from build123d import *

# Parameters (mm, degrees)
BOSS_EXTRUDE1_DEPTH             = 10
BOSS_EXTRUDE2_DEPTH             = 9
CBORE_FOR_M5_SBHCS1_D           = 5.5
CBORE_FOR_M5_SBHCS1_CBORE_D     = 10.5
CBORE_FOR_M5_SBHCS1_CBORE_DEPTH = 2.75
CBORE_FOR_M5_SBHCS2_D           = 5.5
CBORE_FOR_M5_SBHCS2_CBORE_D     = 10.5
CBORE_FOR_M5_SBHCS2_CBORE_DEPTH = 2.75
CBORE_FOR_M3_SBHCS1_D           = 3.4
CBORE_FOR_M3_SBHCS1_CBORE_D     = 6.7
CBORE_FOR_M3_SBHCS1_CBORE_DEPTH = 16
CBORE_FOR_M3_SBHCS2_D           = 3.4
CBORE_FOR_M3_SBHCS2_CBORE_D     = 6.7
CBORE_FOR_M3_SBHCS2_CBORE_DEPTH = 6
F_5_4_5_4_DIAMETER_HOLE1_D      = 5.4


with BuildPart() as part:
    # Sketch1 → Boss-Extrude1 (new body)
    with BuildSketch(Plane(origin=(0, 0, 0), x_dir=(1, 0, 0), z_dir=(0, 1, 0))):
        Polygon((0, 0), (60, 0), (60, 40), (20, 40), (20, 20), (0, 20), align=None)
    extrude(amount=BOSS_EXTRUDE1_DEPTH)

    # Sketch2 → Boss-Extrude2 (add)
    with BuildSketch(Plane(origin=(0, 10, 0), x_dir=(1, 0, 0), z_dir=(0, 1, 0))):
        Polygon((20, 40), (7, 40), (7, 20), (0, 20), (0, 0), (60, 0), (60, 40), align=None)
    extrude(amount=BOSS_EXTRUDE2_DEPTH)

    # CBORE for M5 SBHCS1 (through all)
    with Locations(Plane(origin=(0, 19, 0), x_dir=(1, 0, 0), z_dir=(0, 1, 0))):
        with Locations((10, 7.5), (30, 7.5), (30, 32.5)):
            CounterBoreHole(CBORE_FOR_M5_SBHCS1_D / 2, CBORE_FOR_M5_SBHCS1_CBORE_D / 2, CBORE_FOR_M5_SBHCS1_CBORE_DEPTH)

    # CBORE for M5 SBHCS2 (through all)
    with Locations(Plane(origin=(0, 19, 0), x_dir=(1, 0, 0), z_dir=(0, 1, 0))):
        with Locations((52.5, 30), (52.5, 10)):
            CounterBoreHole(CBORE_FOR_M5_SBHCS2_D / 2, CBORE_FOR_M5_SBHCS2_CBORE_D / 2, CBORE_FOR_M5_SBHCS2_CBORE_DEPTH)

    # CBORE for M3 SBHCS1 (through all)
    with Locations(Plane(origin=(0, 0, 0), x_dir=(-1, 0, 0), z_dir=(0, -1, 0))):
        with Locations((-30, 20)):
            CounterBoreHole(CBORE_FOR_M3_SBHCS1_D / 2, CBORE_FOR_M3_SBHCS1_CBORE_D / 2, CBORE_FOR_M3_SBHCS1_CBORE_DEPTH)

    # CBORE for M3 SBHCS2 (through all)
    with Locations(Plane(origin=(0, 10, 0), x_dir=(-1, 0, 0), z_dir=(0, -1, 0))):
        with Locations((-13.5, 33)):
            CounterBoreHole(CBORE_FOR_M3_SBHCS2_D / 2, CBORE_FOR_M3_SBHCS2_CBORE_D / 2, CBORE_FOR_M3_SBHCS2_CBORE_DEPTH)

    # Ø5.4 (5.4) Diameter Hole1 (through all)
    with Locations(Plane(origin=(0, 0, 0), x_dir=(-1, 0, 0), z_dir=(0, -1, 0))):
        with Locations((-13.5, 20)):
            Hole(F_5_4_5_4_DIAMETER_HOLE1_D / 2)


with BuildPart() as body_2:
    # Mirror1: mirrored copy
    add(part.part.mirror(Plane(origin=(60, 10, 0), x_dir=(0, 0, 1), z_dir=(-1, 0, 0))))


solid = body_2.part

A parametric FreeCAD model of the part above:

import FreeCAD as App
import Part
import Sketcher

doc = App.newDocument("Part")
body = doc.addObject("PartDesign::Body", "Body")

# Sketch on XZ plane
sketch1 = body.newObject("Sketcher::SketchObject", "Sketch")
sketch1.AttachmentSupport = (doc.getObject("XZ_Plane"), [""])
sketch1.MapMode = "FlatFace"
sketch1.addGeometry(Part.LineSegment(App.Vector(0, 0, 0), App.Vector(60, 0, 0)), False)
sketch1.addGeometry(Part.LineSegment(App.Vector(60, 0, 0), App.Vector(60, -40, 0)), False)
sketch1.addGeometry(Part.LineSegment(App.Vector(60, -40, 0), App.Vector(20, -40, 0)), False)
sketch1.addGeometry(Part.LineSegment(App.Vector(20, -40, 0), App.Vector(20, -20, 0)), False)
sketch1.addGeometry(Part.LineSegment(App.Vector(20, -20, 0), App.Vector(0, -20, 0)), False)
sketch1.addGeometry(Part.LineSegment(App.Vector(0, -20, 0), App.Vector(0, 0, 0)), False)
sketch1.addConstraint(Sketcher.Constraint("Coincident", 0, 2, 1, 1))
sketch1.addConstraint(Sketcher.Constraint("Coincident", 1, 2, 2, 1))
sketch1.addConstraint(Sketcher.Constraint("Coincident", 2, 2, 3, 1))
sketch1.addConstraint(Sketcher.Constraint("Coincident", 3, 2, 4, 1))
sketch1.addConstraint(Sketcher.Constraint("Coincident", 4, 2, 5, 1))
sketch1.addConstraint(Sketcher.Constraint("Coincident", 5, 2, 0, 1))
sketch1.addConstraint(Sketcher.Constraint("Horizontal", 0))
sketch1.addConstraint(Sketcher.Constraint("Vertical", 1))
sketch1.addConstraint(Sketcher.Constraint("Horizontal", 2))
sketch1.addConstraint(Sketcher.Constraint("Vertical", 3))
sketch1.addConstraint(Sketcher.Constraint("Horizontal", 4))
sketch1.addConstraint(Sketcher.Constraint("Vertical", 5))
sketch1.addConstraint(Sketcher.Constraint("Coincident", 5, 2, -1, 1))
sketch1.addConstraint(Sketcher.Constraint("Equal", 2, 1))
sketch1.addConstraint(Sketcher.Constraint("Equal", 4, 3))
sketch1.addConstraint(Sketcher.Constraint("Equal", 3, 5))
sketch1.addConstraint(Sketcher.Constraint("DistanceX", 0, 1, 0, 2, 60.0))
pad1 = body.newObject("PartDesign::Pad", "Pad")
pad1.Profile = sketch1
pad1.Length = 10
pad1.Reversed = True

# Sketch on XZ plane
sketch2 = body.newObject("Sketcher::SketchObject", "Sketch001")
sketch2.AttachmentSupport = (doc.getObject("XZ_Plane"), [""])
sketch2.MapMode = "FlatFace"
sketch2.AttachmentOffset = App.Placement(App.Vector(0, 0, -10), App.Rotation())
sketch2.addGeometry(Part.LineSegment(App.Vector(7, -40, 0), App.Vector(7, -20, 0)), False)
sketch2.addGeometry(Part.LineSegment(App.Vector(7, -20, 0), App.Vector(0, -20, 0)), False)
sketch2.addGeometry(Part.LineSegment(App.Vector(0, -20, 0), App.Vector(0, 0, 0)), False)
sketch2.addGeometry(Part.LineSegment(App.Vector(0, 0, 0), App.Vector(60, 0, 0)), False)
sketch2.addGeometry(Part.LineSegment(App.Vector(60, 0, 0), App.Vector(60, -40, 0)), False)
sketch2.addGeometry(Part.LineSegment(App.Vector(60, -40, 0), App.Vector(7, -40, 0)), False)
sketch2.addConstraint(Sketcher.Constraint("Coincident", 0, 2, 1, 1))
sketch2.addConstraint(Sketcher.Constraint("Coincident", 1, 2, 2, 1))
sketch2.addConstraint(Sketcher.Constraint("Coincident", 2, 2, 3, 1))
sketch2.addConstraint(Sketcher.Constraint("Coincident", 3, 2, 4, 1))
sketch2.addConstraint(Sketcher.Constraint("Coincident", 4, 2, 5, 1))
sketch2.addConstraint(Sketcher.Constraint("Coincident", 5, 2, 0, 1))
sketch2.addConstraint(Sketcher.Constraint("Vertical", 0))
sketch2.addConstraint(Sketcher.Constraint("Horizontal", 1))
sketch2.addConstraint(Sketcher.Constraint("Vertical", 2))
sketch2.addConstraint(Sketcher.Constraint("Horizontal", 3))
sketch2.addConstraint(Sketcher.Constraint("Vertical", 4))
sketch2.addConstraint(Sketcher.Constraint("Horizontal", 5))
sketch2.addConstraint(Sketcher.Constraint("Coincident", 2, 2, -1, 1))
sketch2.addConstraint(Sketcher.Constraint("Equal", 0, 2))
sketch2.addConstraint(Sketcher.Constraint("DistanceX", 1, 2, 1, 1, 7.0))
sketch2.addConstraint(Sketcher.Constraint("DistanceX", 3, 1, 3, 2, 60.0))
sketch2.addConstraint(Sketcher.Constraint("DistanceY", 0, 1, 0, 2, 20.0))
pad2 = body.newObject("PartDesign::Pad", "Pad001")
pad2.Profile = sketch2
pad2.Length = 9
pad2.Reversed = True

# Sketch on XZ plane
sketch3 = body.newObject("Sketcher::SketchObject", "Sketch002")
sketch3.AttachmentSupport = (doc.getObject("XZ_Plane"), [""])
sketch3.MapMode = "FlatFace"
sketch3.AttachmentOffset = App.Placement(App.Vector(0, 0, -19), App.Rotation())
sketch3.addGeometry(Part.Circle(App.Vector(10, -7.5, 0), App.Vector(0, 0, 1), 2.8), False)
sketch3.addGeometry(Part.Circle(App.Vector(30, -7.5, 0), App.Vector(0, 0, 1), 2.8), False)
sketch3.addGeometry(Part.Circle(App.Vector(30, -32.5, 0), App.Vector(0, 0, 1), 2.8), False)
sketch3.addConstraint(Sketcher.Constraint("Equal", 0, 1))
sketch3.addConstraint(Sketcher.Constraint("Equal", 1, 2))
sketch3.addConstraint(Sketcher.Constraint("Horizontal", 0, 3, 1, 3))
sketch3.addConstraint(Sketcher.Constraint("Vertical", 1, 3, 2, 3))
sketch3.addConstraint(Sketcher.Constraint("Diameter", 0, 5.5))
sketch3.addConstraint(Sketcher.Constraint("DistanceX", -1, 1, 0, 3, 10.0))
sketch3.addConstraint(Sketcher.Constraint("DistanceX", -1, 1, 1, 3, 30.0))
sketch3.addConstraint(Sketcher.Constraint("DistanceY", 2, 3, 1, 3, 25.0))
sketch3.addConstraint(Sketcher.Constraint("DistanceY", 0, 3, -1, 1, 7.5))
doc.recompute()
hole = body.newObject("PartDesign::Hole", "Hole")
hole.Profile = sketch3
hole.ThreadType = "None"
hole.Diameter = 5.5
hole.DepthType = "ThroughAll"
hole.HoleCutType = "Counterbore"
hole.HoleCutDiameter = 10.5
hole.HoleCutDepth = 2.75
hole.Reversed = True

# Sketch on XZ plane
sketch4 = body.newObject("Sketcher::SketchObject", "Sketch003")
sketch4.AttachmentSupport = (doc.getObject("XZ_Plane"), [""])
sketch4.MapMode = "FlatFace"
sketch4.AttachmentOffset = App.Placement(App.Vector(0, 0, -19), App.Rotation())
sketch4.addGeometry(Part.Circle(App.Vector(52.5, -30, 0), App.Vector(0, 0, 1), 2.8), False)
sketch4.addGeometry(Part.Circle(App.Vector(52.5, -10, 0), App.Vector(0, 0, 1), 2.8), False)
sketch4.addConstraint(Sketcher.Constraint("Equal", 0, 1))
sketch4.addConstraint(Sketcher.Constraint("Vertical", 0, 3, 1, 3))
sketch4.addConstraint(Sketcher.Constraint("Diameter", 0, 5.5))
sketch4.addConstraint(Sketcher.Constraint("DistanceY", 0, 3, -1, 1, 30.0))
sketch4.addConstraint(Sketcher.Constraint("DistanceY", 1, 3, -1, 1, 10.0))
sketch4.addConstraint(Sketcher.Constraint("DistanceX", -1, 1, 0, 3, 52.5))
doc.recompute()
hole2 = body.newObject("PartDesign::Hole", "Hole001")
hole2.Profile = sketch4
hole2.ThreadType = "None"
hole2.Diameter = 5.5
hole2.DepthType = "ThroughAll"
hole2.HoleCutType = "Counterbore"
hole2.HoleCutDiameter = 10.5
hole2.HoleCutDepth = 2.75
hole2.Reversed = True

# Sketch on XZ plane
sketch5 = body.newObject("Sketcher::SketchObject", "Sketch004")
sketch5.AttachmentSupport = (doc.getObject("XZ_Plane"), [""])
sketch5.MapMode = "FlatFace"
sketch5.addGeometry(Part.Circle(App.Vector(30, -20, 0), App.Vector(0, 0, 1), 1.7), False)
sketch5.addConstraint(Sketcher.Constraint("Diameter", 0, 3.4))
sketch5.addConstraint(Sketcher.Constraint("DistanceX", -1, 1, 0, 3, 30.0))
sketch5.addConstraint(Sketcher.Constraint("DistanceY", 0, 3, -1, 1, 20.0))
doc.recompute()
hole3 = body.newObject("PartDesign::Hole", "Hole002")
hole3.Profile = sketch5
hole3.ThreadType = "None"
hole3.Diameter = 3.4
hole3.DepthType = "ThroughAll"
hole3.HoleCutType = "Counterbore"
hole3.HoleCutDiameter = 6.7
hole3.HoleCutDepth = 16

# Sketch on XZ plane
sketch6 = body.newObject("Sketcher::SketchObject", "Sketch005")
sketch6.AttachmentSupport = (doc.getObject("XZ_Plane"), [""])
sketch6.MapMode = "FlatFace"
sketch6.AttachmentOffset = App.Placement(App.Vector(0, 0, -10), App.Rotation())
sketch6.addGeometry(Part.Circle(App.Vector(13.5, -33, 0), App.Vector(0, 0, 1), 1.7), False)
sketch6.addConstraint(Sketcher.Constraint("Diameter", 0, 3.4))
sketch6.addConstraint(Sketcher.Constraint("DistanceY", 0, 3, -1, 1, 33.0))
sketch6.addConstraint(Sketcher.Constraint("DistanceX", -1, 1, 0, 3, 13.5))
doc.recompute()
hole4 = body.newObject("PartDesign::Hole", "Hole003")
hole4.Profile = sketch6
hole4.ThreadType = "None"
hole4.Diameter = 3.4
hole4.DepthType = "ThroughAll"
hole4.HoleCutType = "Counterbore"
hole4.HoleCutDiameter = 6.7
hole4.HoleCutDepth = 6

# Sketch on XZ plane
sketch7 = body.newObject("Sketcher::SketchObject", "Sketch006")
sketch7.AttachmentSupport = (doc.getObject("XZ_Plane"), [""])
sketch7.MapMode = "FlatFace"
sketch7.addGeometry(Part.Circle(App.Vector(13.5, -20, 0), App.Vector(0, 0, 1), 2.7), False)
sketch7.addConstraint(Sketcher.Constraint("Diameter", 0, 5.4))
sketch7.addConstraint(Sketcher.Constraint("DistanceY", 0, 3, -1, 1, 20.0))
sketch7.addConstraint(Sketcher.Constraint("DistanceX", -1, 1, 0, 3, 13.5))
doc.recompute()
hole5 = body.newObject("PartDesign::Hole", "Hole004")
hole5.Profile = sketch7
hole5.ThreadType = "None"
hole5.Diameter = 5.4
hole5.DepthType = "ThroughAll"
body2 = doc.addObject("PartDesign::Body", "Body001")
doc.recompute()

mirroring = doc.addObject("Part::Mirroring", "Mirroring")
mirroring.Source = body
mirroring.Base = App.Vector(60, 10, 0)
mirroring.Normal = App.Vector(-1, 0, 0)
body2.BaseFeature = mirroring
doc.recompute()
body.Visibility = False
mirroring.Visibility = False

doc.recompute()
